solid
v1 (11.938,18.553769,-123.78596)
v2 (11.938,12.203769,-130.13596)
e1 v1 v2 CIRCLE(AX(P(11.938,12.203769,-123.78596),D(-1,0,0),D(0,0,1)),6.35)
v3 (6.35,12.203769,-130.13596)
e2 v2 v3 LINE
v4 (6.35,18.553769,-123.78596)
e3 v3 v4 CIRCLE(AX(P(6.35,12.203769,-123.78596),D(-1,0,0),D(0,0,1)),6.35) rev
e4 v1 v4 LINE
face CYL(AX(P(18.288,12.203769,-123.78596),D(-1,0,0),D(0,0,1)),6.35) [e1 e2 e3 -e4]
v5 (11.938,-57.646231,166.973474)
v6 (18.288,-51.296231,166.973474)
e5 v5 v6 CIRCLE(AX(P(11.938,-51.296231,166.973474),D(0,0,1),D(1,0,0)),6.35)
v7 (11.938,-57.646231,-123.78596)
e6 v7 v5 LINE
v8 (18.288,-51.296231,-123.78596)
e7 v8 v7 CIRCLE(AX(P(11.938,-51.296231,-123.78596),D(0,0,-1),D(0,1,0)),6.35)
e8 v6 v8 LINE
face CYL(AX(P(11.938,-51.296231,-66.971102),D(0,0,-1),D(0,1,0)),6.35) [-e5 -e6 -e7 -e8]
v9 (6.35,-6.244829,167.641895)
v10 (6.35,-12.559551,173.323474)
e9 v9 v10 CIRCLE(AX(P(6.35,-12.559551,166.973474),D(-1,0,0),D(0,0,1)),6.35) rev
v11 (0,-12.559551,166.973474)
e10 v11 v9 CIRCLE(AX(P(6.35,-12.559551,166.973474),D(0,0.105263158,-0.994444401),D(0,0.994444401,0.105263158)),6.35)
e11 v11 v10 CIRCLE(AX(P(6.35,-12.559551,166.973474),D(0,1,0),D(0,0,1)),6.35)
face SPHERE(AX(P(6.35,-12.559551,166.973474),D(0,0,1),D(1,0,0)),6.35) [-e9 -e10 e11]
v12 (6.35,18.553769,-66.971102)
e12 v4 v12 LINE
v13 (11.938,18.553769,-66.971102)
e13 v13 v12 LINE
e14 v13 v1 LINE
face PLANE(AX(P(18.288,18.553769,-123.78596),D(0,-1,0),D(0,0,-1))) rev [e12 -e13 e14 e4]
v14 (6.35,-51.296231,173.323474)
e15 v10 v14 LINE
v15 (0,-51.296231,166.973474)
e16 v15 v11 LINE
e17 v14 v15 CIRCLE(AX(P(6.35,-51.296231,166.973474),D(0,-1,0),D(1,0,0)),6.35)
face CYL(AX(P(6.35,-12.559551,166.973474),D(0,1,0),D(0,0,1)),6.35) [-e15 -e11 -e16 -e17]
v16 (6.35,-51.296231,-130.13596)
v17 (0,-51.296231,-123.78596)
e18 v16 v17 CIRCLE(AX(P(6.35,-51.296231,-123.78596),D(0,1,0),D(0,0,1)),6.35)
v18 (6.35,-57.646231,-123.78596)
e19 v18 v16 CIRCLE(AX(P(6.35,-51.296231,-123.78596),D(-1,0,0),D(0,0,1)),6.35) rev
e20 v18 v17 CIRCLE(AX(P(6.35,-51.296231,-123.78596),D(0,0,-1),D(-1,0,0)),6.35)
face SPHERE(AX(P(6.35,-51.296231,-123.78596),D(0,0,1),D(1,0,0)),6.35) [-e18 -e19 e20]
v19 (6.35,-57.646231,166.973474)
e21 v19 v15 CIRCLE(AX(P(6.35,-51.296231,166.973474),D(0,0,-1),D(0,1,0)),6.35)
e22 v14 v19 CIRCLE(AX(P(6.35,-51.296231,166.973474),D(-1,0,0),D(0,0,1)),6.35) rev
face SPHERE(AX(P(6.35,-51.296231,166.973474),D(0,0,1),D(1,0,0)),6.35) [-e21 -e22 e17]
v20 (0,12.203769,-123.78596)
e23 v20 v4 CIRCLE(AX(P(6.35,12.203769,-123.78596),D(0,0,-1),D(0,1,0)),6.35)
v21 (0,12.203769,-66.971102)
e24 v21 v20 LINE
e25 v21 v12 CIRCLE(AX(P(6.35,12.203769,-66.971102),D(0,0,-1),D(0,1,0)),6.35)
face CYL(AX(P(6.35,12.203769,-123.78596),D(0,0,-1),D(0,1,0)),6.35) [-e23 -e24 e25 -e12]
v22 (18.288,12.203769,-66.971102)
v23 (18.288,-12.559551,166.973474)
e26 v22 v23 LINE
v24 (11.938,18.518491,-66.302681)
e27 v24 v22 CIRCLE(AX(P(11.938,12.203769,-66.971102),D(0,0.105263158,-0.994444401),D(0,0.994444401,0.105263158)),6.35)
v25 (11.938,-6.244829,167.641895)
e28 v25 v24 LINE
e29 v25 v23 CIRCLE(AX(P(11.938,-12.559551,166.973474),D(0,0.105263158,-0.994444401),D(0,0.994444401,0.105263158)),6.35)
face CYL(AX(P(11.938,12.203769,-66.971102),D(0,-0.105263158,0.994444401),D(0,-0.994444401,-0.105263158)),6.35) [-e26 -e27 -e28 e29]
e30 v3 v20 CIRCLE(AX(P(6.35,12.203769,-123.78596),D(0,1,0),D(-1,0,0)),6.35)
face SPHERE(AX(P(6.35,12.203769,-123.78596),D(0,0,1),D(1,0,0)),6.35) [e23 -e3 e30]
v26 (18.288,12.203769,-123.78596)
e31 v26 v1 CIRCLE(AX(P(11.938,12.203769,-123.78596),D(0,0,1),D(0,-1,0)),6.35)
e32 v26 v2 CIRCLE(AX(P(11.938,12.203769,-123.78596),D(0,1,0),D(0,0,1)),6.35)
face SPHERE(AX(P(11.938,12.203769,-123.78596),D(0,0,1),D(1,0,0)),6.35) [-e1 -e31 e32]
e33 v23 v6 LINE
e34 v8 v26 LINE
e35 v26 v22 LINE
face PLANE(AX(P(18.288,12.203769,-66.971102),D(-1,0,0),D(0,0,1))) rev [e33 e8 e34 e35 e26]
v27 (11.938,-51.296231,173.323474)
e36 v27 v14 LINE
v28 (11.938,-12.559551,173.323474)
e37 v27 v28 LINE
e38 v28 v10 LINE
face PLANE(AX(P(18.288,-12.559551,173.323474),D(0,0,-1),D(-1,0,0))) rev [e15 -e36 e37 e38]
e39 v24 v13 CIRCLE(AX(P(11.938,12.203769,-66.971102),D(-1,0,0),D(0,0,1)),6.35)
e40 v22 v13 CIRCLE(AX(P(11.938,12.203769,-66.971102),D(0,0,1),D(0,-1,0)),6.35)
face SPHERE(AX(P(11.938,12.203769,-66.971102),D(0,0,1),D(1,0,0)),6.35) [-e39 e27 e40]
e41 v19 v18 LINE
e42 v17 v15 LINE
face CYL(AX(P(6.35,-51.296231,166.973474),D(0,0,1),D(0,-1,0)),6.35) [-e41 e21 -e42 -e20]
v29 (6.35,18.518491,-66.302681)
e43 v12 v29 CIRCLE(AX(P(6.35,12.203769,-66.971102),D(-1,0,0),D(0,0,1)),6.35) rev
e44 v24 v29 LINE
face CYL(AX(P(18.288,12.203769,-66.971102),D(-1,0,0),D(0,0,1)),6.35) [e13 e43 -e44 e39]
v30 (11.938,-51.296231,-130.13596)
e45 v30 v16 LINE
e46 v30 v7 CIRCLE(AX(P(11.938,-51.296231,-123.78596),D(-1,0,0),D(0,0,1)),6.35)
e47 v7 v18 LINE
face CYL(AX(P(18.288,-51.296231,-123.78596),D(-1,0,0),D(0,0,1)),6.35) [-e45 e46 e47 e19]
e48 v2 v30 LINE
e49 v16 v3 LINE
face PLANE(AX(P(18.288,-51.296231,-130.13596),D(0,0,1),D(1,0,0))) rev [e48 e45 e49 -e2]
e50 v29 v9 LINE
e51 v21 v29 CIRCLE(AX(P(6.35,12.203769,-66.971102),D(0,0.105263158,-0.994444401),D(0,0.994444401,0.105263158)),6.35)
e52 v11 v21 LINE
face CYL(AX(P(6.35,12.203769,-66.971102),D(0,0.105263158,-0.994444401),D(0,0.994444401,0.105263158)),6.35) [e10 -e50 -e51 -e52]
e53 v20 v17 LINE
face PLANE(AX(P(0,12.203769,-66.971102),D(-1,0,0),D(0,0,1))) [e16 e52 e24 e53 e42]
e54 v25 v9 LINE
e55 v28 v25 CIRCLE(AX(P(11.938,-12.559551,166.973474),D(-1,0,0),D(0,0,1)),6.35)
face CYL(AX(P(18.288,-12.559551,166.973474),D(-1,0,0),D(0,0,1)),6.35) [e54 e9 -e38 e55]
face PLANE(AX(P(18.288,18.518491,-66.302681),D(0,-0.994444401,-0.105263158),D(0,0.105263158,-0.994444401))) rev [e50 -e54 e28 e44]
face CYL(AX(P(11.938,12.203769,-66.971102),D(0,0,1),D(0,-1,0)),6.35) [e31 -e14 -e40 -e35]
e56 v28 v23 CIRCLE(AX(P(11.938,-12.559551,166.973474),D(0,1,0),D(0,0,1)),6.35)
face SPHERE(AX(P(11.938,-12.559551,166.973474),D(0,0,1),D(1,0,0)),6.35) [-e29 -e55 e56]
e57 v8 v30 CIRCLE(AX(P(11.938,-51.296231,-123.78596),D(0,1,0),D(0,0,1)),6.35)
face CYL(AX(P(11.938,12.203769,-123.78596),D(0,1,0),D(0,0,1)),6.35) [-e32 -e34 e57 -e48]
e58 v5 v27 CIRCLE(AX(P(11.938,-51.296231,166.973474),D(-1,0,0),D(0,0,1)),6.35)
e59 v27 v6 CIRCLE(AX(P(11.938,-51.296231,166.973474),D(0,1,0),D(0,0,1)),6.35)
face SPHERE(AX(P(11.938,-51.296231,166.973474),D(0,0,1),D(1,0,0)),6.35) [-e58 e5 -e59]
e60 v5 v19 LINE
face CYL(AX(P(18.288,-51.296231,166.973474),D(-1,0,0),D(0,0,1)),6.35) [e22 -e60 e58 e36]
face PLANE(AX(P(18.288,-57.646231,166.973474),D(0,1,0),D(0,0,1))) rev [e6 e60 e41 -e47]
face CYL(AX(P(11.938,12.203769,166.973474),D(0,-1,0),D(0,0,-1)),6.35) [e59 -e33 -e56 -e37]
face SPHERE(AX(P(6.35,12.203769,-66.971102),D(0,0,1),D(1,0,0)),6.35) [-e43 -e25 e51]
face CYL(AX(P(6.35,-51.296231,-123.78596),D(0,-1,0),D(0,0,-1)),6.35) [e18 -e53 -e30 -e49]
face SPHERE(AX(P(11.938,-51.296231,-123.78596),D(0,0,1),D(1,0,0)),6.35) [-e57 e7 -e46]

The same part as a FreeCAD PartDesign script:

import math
import FreeCAD as App
import Part
import Sketcher
from FreeCAD import Vector
Q = App.Units.Quantity


def edges_at(feature, points):
    """Names of the edges that pass closest to the given points."""
    edges = feature.Shape.Edges
    near = lambda p: min(range(len(edges)), key=lambda i: edges[i].distToShape(Part.Vertex(*p))[0])
    return sorted({f"Edge{near(p) + 1}" for p in points})

doc = App.newDocument("Part")
params = doc.addObject("Spreadsheet::Sheet", "Params")
for row, (alias, value) in enumerate([
    ("sketch1_radius", "0.25 in"),
    ("sketch1_width", "2.5 in"),
    ("pad1_length", "0.72 in"),
    ("fillet_radius", "0.25 in"),
], start=1):
    params.set(f"A{row}", alias)
    params.set(f"B{row}", "=" + value)
    params.setAlias(f"B{row}", alias)

body = doc.addObject("PartDesign::Body", "Body")

sketch1 = body.newObject("Sketcher::SketchObject", "Sketch")
sketch1.AttachmentSupport = (doc.getObject("YZ_Plane"), [""])
sketch1.MapMode = "FlatFace"
sketch1.addGeometry([
    Part.LineSegment(Vector(-57.6, 167, 0), Vector(-57.6, -123.8, 0)),
    Part.ArcOfCircle(Part.Circle(Vector(-51.3, -123.8, 0), Vector(0, 0, 1), 6.3), math.radians(180), math.radians(270)),
    Part.LineSegment(Vector(-51.3, -130.1, 0), Vector(12.2, -130.1, 0)),
    Part.ArcOfCircle(Part.Circle(Vector(12.2, -123.8, 0), Vector(0, 0, 1), 6.4), math.radians(-90), math.radians(0)),
    Part.LineSegment(Vector(18.6, -123.8, 0), Vector(18.6, -67, 0)),
    Part.ArcOfCircle(Part.Circle(Vector(12.2, -67, 0), Vector(0, 0, 1), 6.3), math.radians(0), math.radians(6.04)),
    Part.LineSegment(Vector(18.5, -66.3, 0), Vector(-6.2, 167.6, 0)),
    Part.ArcOfCircle(Part.Circle(Vector(-12.6, 167, 0), Vector(0, 0, 1), 6.3), math.radians(6), math.radians(90)),
    Part.LineSegment(Vector(-12.6, 173.3, 0), Vector(-51.3, 173.3, 0)),
    Part.ArcOfCircle(Part.Circle(Vector(-51.3, 167, 0), Vector(0, 0, 1), 6.3), math.radians(90), math.radians(180)),
], False)
sketch1.addConstraint([
    Sketcher.Constraint("Tangent", 0, 2, 1, 1),
    Sketcher.Constraint("Tangent", 1, 2, 2, 1),
    Sketcher.Constraint("Tangent", 2, 2, 3, 1),
    Sketcher.Constraint("Tangent", 3, 2, 4, 1),
    Sketcher.Constraint("Tangent", 4, 2, 5, 1),
    Sketcher.Constraint("Tangent", 5, 2, 6, 1),
    Sketcher.Constraint("Tangent", 6, 2, 7, 1),
    Sketcher.Constraint("Tangent", 7, 2, 8, 1),
    Sketcher.Constraint("Tangent", 8, 2, 9, 1),
    Sketcher.Constraint("Tangent", 9, 2, 0, 1),
    Sketcher.Constraint("Vertical", 0),
    Sketcher.Constraint("Horizontal", 2),
    Sketcher.Constraint("Vertical", 4),
    Sketcher.Constraint("Horizontal", 8),
    Sketcher.Constraint("Equal", 1, 3),
    Sketcher.Constraint("Equal", 3, 5),
    Sketcher.Constraint("Equal", 5, 7),
    Sketcher.Constraint("Equal", 7, 9),
    Sketcher.Constraint("Radius", 1, Q("0.25 in")),
    Sketcher.Constraint("DistanceX", 2, 1, 2, 2, Q("2.5 in")),
    Sketcher.Constraint("DistanceX", 8, 2, 8, 1, 38.73668),
    Sketcher.Constraint("DistanceY", 4, 1, 4, 2, 56.814859),
    Sketcher.Constraint("DistanceY", 5, 3, -1, 1, 66.971102),
    Sketcher.Constraint("Distance", 6, 235.251539),
    Sketcher.Constraint("DistanceX", 1, 3, -1, 1, 51.296231),
])
sketch1.setExpression("Constraints[18]", "Params.sketch1_radius")
sketch1.setExpression("Constraints[19]", "Params.sketch1_width")
pad1 = body.newObject("PartDesign::Pad", "Pad")
pad1.Profile = sketch1
pad1.setExpression("Length", "Params.pad1_length")
doc.recompute()

fillet = body.newObject("PartDesign::Fillet", "Fillet")
fillet.Base = (pad1, edges_at(pad1, [
    (18.288, -8.312, 171.694),
    (0, -19.546, -130.136),
    (0, -55.786, -128.276),
    (0, -57.646, 21.594),
    (0, -55.786, 171.464),
    (0, -31.928, 173.323),
    (0, -8.312, 171.694),
    (0, 6.137, 50.67),
    (0, 18.545, -66.636),
    (18.288, -31.928, 173.323),
    (18.288, -55.786, 171.464),
    (18.288, -57.646, 21.594),
    (18.288, -55.786, -128.276),
    (18.288, -19.546, -130.136),
    (18.288, 16.694, -128.276),
    (18.288, 18.554, -95.379),
    (18.288, 18.545, -66.636),
    (18.288, 6.137, 50.67),
    (0, 18.554, -95.379),
    (0, 16.694, -128.276),
]))
fillet.setExpression("Radius", "Params.fillet_radius")

doc.recompute()
